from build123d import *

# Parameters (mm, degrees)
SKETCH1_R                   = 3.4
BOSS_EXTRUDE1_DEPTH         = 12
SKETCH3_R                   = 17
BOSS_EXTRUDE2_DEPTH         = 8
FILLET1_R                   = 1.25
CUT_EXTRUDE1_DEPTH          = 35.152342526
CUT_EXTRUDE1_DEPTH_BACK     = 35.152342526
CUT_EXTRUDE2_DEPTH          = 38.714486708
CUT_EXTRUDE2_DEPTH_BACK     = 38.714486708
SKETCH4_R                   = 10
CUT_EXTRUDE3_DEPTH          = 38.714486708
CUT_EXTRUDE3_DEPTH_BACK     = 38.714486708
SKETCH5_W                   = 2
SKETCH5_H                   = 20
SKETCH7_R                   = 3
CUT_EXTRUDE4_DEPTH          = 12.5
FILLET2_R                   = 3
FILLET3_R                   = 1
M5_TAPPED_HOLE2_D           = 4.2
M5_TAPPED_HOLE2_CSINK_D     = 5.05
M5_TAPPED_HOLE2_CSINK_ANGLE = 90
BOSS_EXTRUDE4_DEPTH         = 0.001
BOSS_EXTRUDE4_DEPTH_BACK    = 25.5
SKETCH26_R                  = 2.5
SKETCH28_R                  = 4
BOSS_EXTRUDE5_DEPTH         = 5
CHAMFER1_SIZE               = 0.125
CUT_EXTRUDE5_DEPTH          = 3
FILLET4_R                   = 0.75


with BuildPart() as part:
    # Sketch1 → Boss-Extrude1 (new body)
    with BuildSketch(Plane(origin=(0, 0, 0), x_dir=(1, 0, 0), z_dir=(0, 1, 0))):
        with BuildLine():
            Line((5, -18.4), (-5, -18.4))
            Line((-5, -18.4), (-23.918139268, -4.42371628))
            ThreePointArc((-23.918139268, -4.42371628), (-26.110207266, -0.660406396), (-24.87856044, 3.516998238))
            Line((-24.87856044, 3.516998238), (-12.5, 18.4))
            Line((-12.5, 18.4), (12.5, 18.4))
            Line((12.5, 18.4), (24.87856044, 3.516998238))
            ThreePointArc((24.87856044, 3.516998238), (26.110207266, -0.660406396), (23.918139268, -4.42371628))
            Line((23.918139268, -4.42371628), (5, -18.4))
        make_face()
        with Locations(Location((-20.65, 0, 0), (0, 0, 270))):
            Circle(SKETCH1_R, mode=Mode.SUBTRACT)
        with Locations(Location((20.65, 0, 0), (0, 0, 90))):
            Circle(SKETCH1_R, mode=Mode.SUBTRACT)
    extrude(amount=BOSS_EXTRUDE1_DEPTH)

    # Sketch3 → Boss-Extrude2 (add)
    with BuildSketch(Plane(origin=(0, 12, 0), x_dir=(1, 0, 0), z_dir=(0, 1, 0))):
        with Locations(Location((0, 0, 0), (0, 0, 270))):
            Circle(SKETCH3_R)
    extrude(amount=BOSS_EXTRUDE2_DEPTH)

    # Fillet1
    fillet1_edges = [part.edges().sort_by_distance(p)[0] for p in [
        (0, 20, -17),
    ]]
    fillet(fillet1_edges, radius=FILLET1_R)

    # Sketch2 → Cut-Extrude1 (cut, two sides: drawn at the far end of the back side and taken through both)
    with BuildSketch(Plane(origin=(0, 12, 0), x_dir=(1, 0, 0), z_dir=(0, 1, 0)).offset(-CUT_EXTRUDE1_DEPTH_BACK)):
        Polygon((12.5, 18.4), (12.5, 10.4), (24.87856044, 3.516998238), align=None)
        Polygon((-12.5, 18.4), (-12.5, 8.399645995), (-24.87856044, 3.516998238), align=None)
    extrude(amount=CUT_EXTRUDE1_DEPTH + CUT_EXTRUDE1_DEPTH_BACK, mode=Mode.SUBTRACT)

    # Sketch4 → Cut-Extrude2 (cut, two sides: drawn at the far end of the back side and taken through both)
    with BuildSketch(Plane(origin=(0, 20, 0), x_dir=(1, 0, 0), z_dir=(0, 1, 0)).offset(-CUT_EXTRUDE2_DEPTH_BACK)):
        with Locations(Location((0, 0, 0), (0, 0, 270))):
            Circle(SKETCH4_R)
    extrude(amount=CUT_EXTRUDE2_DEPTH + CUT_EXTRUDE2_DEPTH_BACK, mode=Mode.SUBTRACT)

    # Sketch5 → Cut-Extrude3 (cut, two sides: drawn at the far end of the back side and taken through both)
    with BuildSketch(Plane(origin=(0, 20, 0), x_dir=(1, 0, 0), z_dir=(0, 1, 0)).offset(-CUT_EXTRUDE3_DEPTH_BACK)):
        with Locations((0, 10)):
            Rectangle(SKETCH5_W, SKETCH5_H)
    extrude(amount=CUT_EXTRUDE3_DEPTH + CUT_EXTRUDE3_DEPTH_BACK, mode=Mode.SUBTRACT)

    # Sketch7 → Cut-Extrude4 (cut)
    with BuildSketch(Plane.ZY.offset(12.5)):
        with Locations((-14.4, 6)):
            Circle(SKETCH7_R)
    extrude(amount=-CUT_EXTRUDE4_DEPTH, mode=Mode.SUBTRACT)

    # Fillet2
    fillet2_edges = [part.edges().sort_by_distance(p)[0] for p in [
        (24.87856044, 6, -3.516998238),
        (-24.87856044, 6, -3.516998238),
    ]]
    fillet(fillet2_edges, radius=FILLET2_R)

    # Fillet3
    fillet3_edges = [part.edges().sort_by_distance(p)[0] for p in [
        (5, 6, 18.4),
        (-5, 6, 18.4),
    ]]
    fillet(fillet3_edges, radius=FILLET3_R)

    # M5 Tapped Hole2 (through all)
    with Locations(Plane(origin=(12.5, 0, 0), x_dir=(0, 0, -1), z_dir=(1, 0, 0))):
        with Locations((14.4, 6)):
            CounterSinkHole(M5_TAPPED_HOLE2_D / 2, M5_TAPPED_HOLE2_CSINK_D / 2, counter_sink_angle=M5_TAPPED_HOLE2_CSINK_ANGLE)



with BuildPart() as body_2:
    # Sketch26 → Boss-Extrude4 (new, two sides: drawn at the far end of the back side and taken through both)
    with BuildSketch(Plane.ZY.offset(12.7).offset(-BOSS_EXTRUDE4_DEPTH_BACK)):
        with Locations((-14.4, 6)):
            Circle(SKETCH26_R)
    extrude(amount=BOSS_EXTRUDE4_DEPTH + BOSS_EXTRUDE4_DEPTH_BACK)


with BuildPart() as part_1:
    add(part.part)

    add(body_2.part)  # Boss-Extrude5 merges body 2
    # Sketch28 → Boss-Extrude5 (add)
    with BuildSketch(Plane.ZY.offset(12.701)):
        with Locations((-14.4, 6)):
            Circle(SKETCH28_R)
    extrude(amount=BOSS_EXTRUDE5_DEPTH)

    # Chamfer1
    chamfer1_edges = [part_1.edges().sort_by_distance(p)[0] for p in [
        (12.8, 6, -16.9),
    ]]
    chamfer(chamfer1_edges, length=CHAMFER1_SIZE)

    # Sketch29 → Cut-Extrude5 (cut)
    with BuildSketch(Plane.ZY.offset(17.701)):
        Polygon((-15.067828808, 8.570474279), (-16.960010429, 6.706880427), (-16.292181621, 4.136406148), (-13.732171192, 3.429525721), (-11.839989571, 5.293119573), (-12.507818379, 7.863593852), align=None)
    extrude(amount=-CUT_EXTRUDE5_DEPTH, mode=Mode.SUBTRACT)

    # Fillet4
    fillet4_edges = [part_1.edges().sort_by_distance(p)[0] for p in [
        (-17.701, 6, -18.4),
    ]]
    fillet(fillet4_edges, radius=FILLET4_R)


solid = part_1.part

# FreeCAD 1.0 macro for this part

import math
import FreeCAD as App
import Part
import Sketcher
from FreeCAD import Vector
Q = App.Units.Quantity


def edges_at(feature, points):
    """Names of the edges that pass closest to the given points."""
    edges = feature.Shape.Edges
    near = lambda p: min(range(len(edges)), key=lambda i: edges[i].distToShape(Part.Vertex(*p))[0])
    return sorted({f"Edge{near(p) + 1}" for p in points})


def add_polygon(sketch, points):
    """Adds a closed chain of lines whose ends are joined by coincident constraints."""
    first, n = sketch.GeometryCount, len(points)
    for a, b in zip(points, points[1:] + points[:1]):
        sketch.addGeometry(Part.LineSegment(App.Vector(*a, 0), App.Vector(*b, 0)), False)
    for i in range(n):
        sketch.addConstraint(Sketcher.Constraint("Coincident", first + i, 2, first + (i + 1) % n, 1))

doc = App.newDocument("Part")
body = doc.addObject("PartDesign::Body", "Body")

sketch1 = doc.addObject("Sketcher::SketchObject", "Sketch")
body.addObject(sketch1)
sketch1.AttachmentSupport = (doc.XZ_Plane, [""])
sketch1.MapMode = "FlatFace"
sketch1.addGeometry(Part.LineSegment(Vector(-5, 18.4, 0), Vector(5, 18.4, 0)), False)
sketch1.addGeometry(Part.LineSegment(Vector(5, 18.4, 0), Vector(23.9, 4.4, 0)), False)
sketch1.addGeometry(Part.ArcOfCircle(Part.Circle(Vector(20.6, 0, 0), Vector(0, 0, 1), 5.5), math.radians(-40), math.radians(54)), False)
sketch1.addGeometry(Part.LineSegment(Vector(24.9, -3.5, 0), Vector(12.5, -18.4, 0)), False)
sketch1.addGeometry(Part.LineSegment(Vector(12.5, -18.4, 0), Vector(-12.5, -18.4, 0)), False)
sketch1.addGeometry(Part.LineSegment(Vector(-12.5, -18.4, 0), Vector(-24.9, -3.5, 0)), False)
sketch1.addGeometry(Part.ArcOfCircle(Part.Circle(Vector(-20.6, 0, 0), Vector(0, 0, 1), 5.5), math.radians(126), math.radians(220)), False)
sketch1.addGeometry(Part.LineSegment(Vector(-23.9, 4.4, 0), Vector(-5, 18.4, 0)), False)
sketch1.addGeometry(Part.Circle(Vector(20.6, 0, 0), Vector(0, 0, 1), 3.4), False)
sketch1.addGeometry(Part.Circle(Vector(-20.6, 0, 0), Vector(0, 0, 1), 3.4), False)
sketch1.addConstraint(Sketcher.Constraint("Coincident", 0, 2, 1, 1))
sketch1.addConstraint(Sketcher.Constraint("Tangent", 1, 2, 2, 2))
sketch1.addConstraint(Sketcher.Constraint("Tangent", 2, 1, 3, 1))
sketch1.addConstraint(Sketcher.Constraint("Coincident", 3, 2, 4, 1))
sketch1.addConstraint(Sketcher.Constraint("Coincident", 4, 2, 5, 1))
sketch1.addConstraint(Sketcher.Constraint("Tangent", 5, 2, 6, 2))
sketch1.addConstraint(Sketcher.Constraint("Tangent", 6, 1, 7, 1))
sketch1.addConstraint(Sketcher.Constraint("Coincident", 7, 2, 0, 1))
sketch1.addConstraint(Sketcher.Constraint("Horizontal", 0))
sketch1.addConstraint(Sketcher.Constraint("Horizontal", 4))
sketch1.addConstraint(Sketcher.Constraint("Coincident", 8, 3, 2, 3))
sketch1.addConstraint(Sketcher.Constraint("Coincident", 9, 3, 6, 3))
sketch1.addConstraint(Sketcher.Constraint("Equal", 2, 6))
sketch1.addConstraint(Sketcher.Constraint("Equal", 8, 9))
sketch1.addConstraint(Sketcher.Constraint("Symmetric", 2, 3, 6, 3, -1, 1))
sketch1.addConstraint(Sketcher.Constraint("Symmetric", 2, 1, 5, 2, -2))
sketch1.addConstraint(Sketcher.Constraint("Horizontal", 1, 2, 6, 1))
sketch1.addConstraint(Sketcher.Constraint("Diameter", 8, Q("6.8 mm")))
sketch1.addConstraint(Sketcher.Constraint("Radius", 2, Q("5.5 mm")))
sketch1.addConstraint(Sketcher.Constraint("DistanceX", 0, 1, 0, 2, Q("10 mm")))
sketch1.addConstraint(Sketcher.Constraint("DistanceX", 4, 2, 4, 1, Q("25 mm")))
sketch1.addConstraint(Sketcher.Constraint("DistanceY", -1, 1, 0, 2, Q("18.4 mm")))
sketch1.addConstraint(Sketcher.Constraint("DistanceY", 3, 2, -1, 1, Q("18.4 mm")))
sketch1.addConstraint(Sketcher.Constraint("DistanceX", 6, 3, 2, 3, Q("41.3 mm")))
pad1 = doc.addObject("PartDesign::Pad", "Pad")
body.addObject(pad1)
pad1.Profile = sketch1
pad1.Length = 12
pad1.Reversed = True

sketch2 = doc.addObject("Sketcher::SketchObject", "Sketch001")
body.addObject(sketch2)
sketch2.AttachmentSupport = (doc.XZ_Plane, [""])
sketch2.MapMode = "FlatFace"
sketch2.AttachmentOffset = App.Placement(Vector(0, 0, -12), App.Rotation())
sketch2.addGeometry(Part.Circle(Vector(0, 0, 0), Vector(0, 0, 1), 17), False)
sketch2.addConstraint(Sketcher.Constraint("Coincident", 0, 3, -1, 1))
sketch2.addConstraint(Sketcher.Constraint("Diameter", 0, Q("34 mm")))
pad2 = doc.addObject("PartDesign::Pad", "Pad001")
body.addObject(pad2)
pad2.Profile = sketch2
pad2.Length = 8
pad2.Reversed = True
doc.recompute()

fillet = doc.addObject("PartDesign::Fillet", "Fillet")
body.addObject(fillet)
fillet.Base = (pad2, edges_at(pad2, [(0, 20, -17)]))
fillet.Radius = 1.25

sketch3 = doc.addObject("Sketcher::SketchObject", "Sketch002")
body.addObject(sketch3)
sketch3.AttachmentSupport = (doc.XZ_Plane, [""])
sketch3.MapMode = "FlatFace"
sketch3.AttachmentOffset = App.Placement(Vector(0, 0, -12), App.Rotation())
add_polygon(sketch3, [(12, -18), (12, -10), (25, -4)])
add_polygon(sketch3, [(-12, -8), (-12, -18), (-25, -4)])
sketch3.addConstraint(Sketcher.Constraint("Vertical", 0))
sketch3.addConstraint(Sketcher.Constraint("Vertical", 3))
sketch3.addConstraint(Sketcher.Constraint("Symmetric", 2, 2, 3, 2, -2))
sketch3.addConstraint(Sketcher.Constraint("Symmetric", 1, 2, 4, 2, -2))
sketch3.addConstraint(Sketcher.Constraint("DistanceY", 0, 1, 0, 2, Q("8 mm")))
sketch3.addConstraint(Sketcher.Constraint("DistanceX", 3, 2, 2, 2, Q("25 mm")))
sketch3.addConstraint(Sketcher.Constraint("DistanceY", 0, 2, -1, 1, Q("10.4 mm")))
sketch3.addConstraint(Sketcher.Constraint("DistanceY", 1, 2, -1, 1, Q("3.516998 mm")))
sketch3.addConstraint(Sketcher.Constraint("Distance", 1, Q("14.163491 mm")))
sketch3.addConstraint(Sketcher.Constraint("DistanceY", 3, 2, 3, 1, Q("10.000354 mm")))
pocket1 = doc.addObject("PartDesign::Pocket", "Pocket")
body.addObject(pocket1)
pocket1.Profile = sketch3
pocket1.Type = "ThroughAll"
pocket1.Midplane = True

sketch4 = doc.addObject("Sketcher::SketchObject", "Sketch003")
body.addObject(sketch4)
sketch4.AttachmentSupport = (doc.XZ_Plane, [""])
sketch4.MapMode = "FlatFace"
sketch4.AttachmentOffset = App.Placement(Vector(0, 0, -20), App.Rotation())
sketch4.addGeometry(Part.Circle(Vector(0, 0, 0), Vector(0, 0, 1), 10), False)
sketch4.addConstraint(Sketcher.Constraint("Coincident", 0, 3, -1, 1))
sketch4.addConstraint(Sketcher.Constraint("Diameter", 0, Q("20 mm")))
pocket2 = doc.addObject("PartDesign::Pocket", "Pocket001")
body.addObject(pocket2)
pocket2.Profile = sketch4
pocket2.Type = "ThroughAll"
pocket2.Midplane = True

sketch5 = doc.addObject("Sketcher::SketchObject", "Sketch004")
body.addObject(sketch5)
sketch5.AttachmentSupport = (doc.XZ_Plane, [""])
sketch5.MapMode = "FlatFace"
sketch5.AttachmentOffset = App.Placement(Vector(0, 0, -20), App.Rotation())
add_polygon(sketch5, [(-1, -20), (-1, 0), (1, 0), (1, -20)])
sketch5.addConstraint(Sketcher.Constraint("Vertical", 0))
sketch5.addConstraint(Sketcher.Constraint("Horizontal", 1))
sketch5.addConstraint(Sketcher.Constraint("Vertical", 2))
sketch5.addConstraint(Sketcher.Constraint("Horizontal", 3))
sketch5.addConstraint(Sketcher.Constraint("Symmetric", 0, 2, 1, 2, -1, 1))
sketch5.addConstraint(Sketcher.Constraint("DistanceX", 1, 1, 1, 2, Q("2 mm")))
sketch5.addConstraint(Sketcher.Constraint("DistanceY", 0, 1, 0, 2, Q("20 mm")))
pocket3 = doc.addObject("PartDesign::Pocket", "Pocket002")
body.addObject(pocket3)
pocket3.Profile = sketch5
pocket3.Type = "ThroughAll"
pocket3.Midplane = True

sketch6 = doc.addObject("Sketcher::SketchObject", "Sketch005")
body.addObject(sketch6)
sketch6.AttachmentSupport = (doc.YZ_Plane, [""])
sketch6.MapMode = "FlatFace"
sketch6.AttachmentOffset = App.Placement(Vector(0, 0, -12.5), App.Rotation())
sketch6.addGeometry(Part.Circle(Vector(6, -14.4, 0), Vector(0, 0, 1), 3), False)
sketch6.addConstraint(Sketcher.Constraint("Diameter", 0, Q("6 mm")))
sketch6.addConstraint(Sketcher.Constraint("DistanceX", -1, 1, 0, 3, Q("6 mm")))
sketch6.addConstraint(Sketcher.Constraint("DistanceY", 0, 3, -1, 1, Q("14.4 mm")))
pocket4 = doc.addObject("PartDesign::Pocket", "Pocket003")
body.addObject(pocket4)
pocket4.Profile = sketch6
pocket4.Length = 12.5
pocket4.Reversed = True
doc.recompute()

fillet2 = doc.addObject("PartDesign::Fillet", "Fillet001")
body.addObject(fillet2)
fillet2.Base = (pocket4, edges_at(pocket4, [(24.879, 6, -3.517), (-24.879, 6, -3.517)]))
fillet2.Radius = 3
doc.recompute()

fillet3 = doc.addObject("PartDesign::Fillet", "Fillet002")
body.addObject(fillet3)
fillet3.Base = (fillet2, edges_at(fillet2, [(5, 6, 18.4), (-5, 6, 18.4)]))
fillet3.Radius = 1

sketch7 = doc.addObject("Sketcher::SketchObject", "Sketch006")
body.addObject(sketch7)
sketch7.AttachmentSupport = (doc.YZ_Plane, [""])
sketch7.MapMode = "FlatFace"
sketch7.AttachmentOffset = App.Placement(Vector(0, 0, 12.5), App.Rotation())
sketch7.addGeometry(Part.Circle(Vector(6, -14.4, 0), Vector(0, 0, 1), 2.1), False)
sketch7.addConstraint(Sketcher.Constraint("Diameter", 0, Q("4.2 mm")))
sketch7.addConstraint(Sketcher.Constraint("DistanceX", -1, 1, 0, 3, Q("6 mm")))
sketch7.addConstraint(Sketcher.Constraint("DistanceY", 0, 3, -1, 1, Q("14.4 mm")))
doc.recompute()
hole = doc.addObject("PartDesign::Hole", "Hole")
body.addObject(hole)
hole.Profile = sketch7
hole.ThreadType = "None"
hole.Diameter = 4.2
hole.DepthType = "ThroughAll"
hole.HoleCutType = "Countersink"
hole.HoleCutDiameter = 5.05
hole.HoleCutCountersinkAngle = 90
body2 = doc.addObject("PartDesign::Body", "Body001")

sketch8 = doc.addObject("Sketcher::SketchObject", "Sketch007")
body2.addObject(sketch8)
sketch8.AttachmentSupport = (doc.getObject("YZ_Plane001"), [""])
sketch8.MapMode = "FlatFace"
sketch8.AttachmentOffset = App.Placement(Vector(0, 0, -12.7), App.Rotation())
sketch8.addGeometry(Part.Circle(Vector(6, -14.4, 0), Vector(0, 0, 1), 2.5), False)
sketch8.addConstraint(Sketcher.Constraint("Diameter", 0, Q("5 mm")))
sketch8.addConstraint(Sketcher.Constraint("DistanceX", -1, 1, 0, 3, Q("6 mm")))
sketch8.addConstraint(Sketcher.Constraint("DistanceY", 0, 3, -1, 1, Q("14.4 mm")))
pad3 = doc.addObject("PartDesign::Pad", "Pad002")
body2.addObject(pad3)
pad3.Profile = sketch8
pad3.Type = "TwoLengths"
pad3.Length = 0.001
pad3.Length2 = 25.5
pad3.Reversed = True
doc.recompute()

boolean = doc.addObject("PartDesign::Boolean", "Boolean")
body.addObject(boolean)
boolean.Type = "Fuse"
boolean.addObjects([body2])

sketch9 = doc.addObject("Sketcher::SketchObject", "Sketch008")
body.addObject(sketch9)
sketch9.AttachmentSupport = (doc.YZ_Plane, [""])
sketch9.MapMode = "FlatFace"
sketch9.AttachmentOffset = App.Placement(Vector(0, 0, -12.701), App.Rotation())
sketch9.addGeometry(Part.Circle(Vector(6, -14.4, 0), Vector(0, 0, 1), 4), False)
sketch9.addConstraint(Sketcher.Constraint("Diameter", 0, Q("8 mm")))
sketch9.addConstraint(Sketcher.Constraint("DistanceX", -1, 1, 0, 3, Q("6 mm")))
sketch9.addConstraint(Sketcher.Constraint("DistanceY", 0, 3, -1, 1, Q("14.4 mm")))
pad4 = doc.addObject("PartDesign::Pad", "Pad003")
body.addObject(pad4)
pad4.Profile = sketch9
pad4.Length = 5
pad4.Reversed = True
doc.recompute()

chamfer = doc.addObject("PartDesign::Chamfer", "Chamfer")
body.addObject(chamfer)
chamfer.Base = (pad4, edges_at(pad4, [(12.8, 6, -16.9)]))
chamfer.Size = 0.125

sketch10 = doc.addObject("Sketcher::SketchObject", "Sketch009")
body.addObject(sketch10)
sketch10.AttachmentSupport = (doc.YZ_Plane, [""])
sketch10.MapMode = "FlatFace"
sketch10.AttachmentOffset = App.Placement(Vector(0, 0, -17.701), App.Rotation())
add_polygon(sketch10, [(8.6, -15.1), (6.7, -17), (4.1, -16.3), (3.4, -13.7), (5.3, -11.8), (7.9, -12.5)])
sketch10.addConstraint(Sketcher.Constraint("Parallel", 0, 3))
sketch10.addConstraint(Sketcher.Constraint("Parallel", 1, 4))
sketch10.addConstraint(Sketcher.Constraint("Parallel", 2, 5))
sketch10.addConstraint(Sketcher.Constraint("Equal", 0, 1))
sketch10.addConstraint(Sketcher.Constraint("Equal", 1, 2))
sketch10.addConstraint(Sketcher.Constraint("Equal", 2, 3))
sketch10.addConstraint(Sketcher.Constraint("Distance", 0, Q("2.655811 mm")))
sketch10.addConstraint(Sketcher.Constraint("DistanceX", -1, 1, 0, 2, Q("6.70688 mm")))
sketch10.addConstraint(Sketcher.Constraint("DistanceY", 0, 2, -1, 1, Q("16.96001 mm")))
sketch10.addConstraint(Sketcher.Constraint("DistanceY", 1, 2, -1, 1, Q("16.292182 mm")))
sketch10.addConstraint(Sketcher.Constraint("DistanceY", 2, 2, -1, 1, Q("13.732171 mm")))
sketch10.addConstraint(Sketcher.Constraint("DistanceX", -1, 1, 3, 2, Q("5.29312 mm")))
pocket5 = doc.addObject("PartDesign::Pocket", "Pocket004")
body.addObject(pocket5)
pocket5.Profile = sketch10
pocket5.Length = 3
pocket5.Reversed = True
doc.recompute()

fillet4 = doc.addObject("PartDesign::Fillet", "Fillet003")
body.addObject(fillet4)
fillet4.Base = (pocket5, edges_at(pocket5, [(-17.701, 6, -18.4)]))
fillet4.Radius = 0.75

doc.recompute()
